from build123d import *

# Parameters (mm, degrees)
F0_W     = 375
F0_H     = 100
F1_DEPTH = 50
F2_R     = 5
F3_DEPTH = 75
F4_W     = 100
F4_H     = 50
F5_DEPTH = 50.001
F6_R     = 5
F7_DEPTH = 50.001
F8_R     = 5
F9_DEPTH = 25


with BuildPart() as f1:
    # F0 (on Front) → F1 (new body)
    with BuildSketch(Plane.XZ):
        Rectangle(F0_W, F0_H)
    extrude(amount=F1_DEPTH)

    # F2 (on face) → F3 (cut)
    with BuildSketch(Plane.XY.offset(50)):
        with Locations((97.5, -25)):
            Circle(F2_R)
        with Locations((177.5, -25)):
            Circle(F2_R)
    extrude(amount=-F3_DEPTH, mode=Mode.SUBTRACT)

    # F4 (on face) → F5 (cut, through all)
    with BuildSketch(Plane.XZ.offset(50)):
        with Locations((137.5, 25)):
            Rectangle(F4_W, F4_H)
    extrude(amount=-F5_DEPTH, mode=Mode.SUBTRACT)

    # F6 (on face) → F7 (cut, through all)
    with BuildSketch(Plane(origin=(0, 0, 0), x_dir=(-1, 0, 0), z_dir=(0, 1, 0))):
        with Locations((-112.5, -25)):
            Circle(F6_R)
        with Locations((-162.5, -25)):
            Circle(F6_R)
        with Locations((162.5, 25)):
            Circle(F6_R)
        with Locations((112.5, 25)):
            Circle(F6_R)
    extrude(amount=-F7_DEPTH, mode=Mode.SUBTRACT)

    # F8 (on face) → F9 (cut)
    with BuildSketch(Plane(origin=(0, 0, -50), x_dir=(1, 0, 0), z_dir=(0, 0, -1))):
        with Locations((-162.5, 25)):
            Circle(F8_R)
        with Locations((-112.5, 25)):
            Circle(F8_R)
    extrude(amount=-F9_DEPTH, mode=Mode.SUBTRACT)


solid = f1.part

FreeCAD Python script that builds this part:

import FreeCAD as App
import Part
import Sketcher
from FreeCAD import Vector


def add_polygon(sketch, points):
    """Adds a closed chain of lines whose ends are joined by coincident constraints."""
    first, n = sketch.GeometryCount, len(points)
    for a, b in zip(points, points[1:] + points[:1]):
        sketch.addGeometry(Part.LineSegment(App.Vector(*a, 0), App.Vector(*b, 0)), False)
    for i in range(n):
        sketch.addConstraint(Sketcher.Constraint("Coincident", first + i, 2, first + (i + 1) % n, 1))

doc = App.newDocument("Part")
body = doc.addObject("PartDesign::Body", "Body")

# Sketch on XZ plane
sketch1 = body.newObject("Sketcher::SketchObject", "Sketch")
sketch1.AttachmentSupport = (doc.getObject("XZ_Plane"), [""])
sketch1.MapMode = "FlatFace"
add_polygon(sketch1, [(-187.5, 50), (-187.5, -50), (187.5, -50), (187.5, 50)])  # lines 0-3
sketch1.addConstraint([
    Sketcher.Constraint("Vertical", 0),
    Sketcher.Constraint("Horizontal", 1),
    Sketcher.Constraint("Vertical", 2),
    Sketcher.Constraint("Horizontal", 3),
    Sketcher.Constraint("Symmetric", 0, 2, 2, 2, -1, 1),
    Sketcher.Constraint("DistanceX", 1, 1, 1, 2, 375.0),
    Sketcher.Constraint("DistanceY", 0, 2, 0, 1, 100.0),
])
pad1 = body.newObject("PartDesign::Pad", "Pad")
pad1.Profile = sketch1
pad1.Length = 50

# Sketch on XY plane
sketch2 = body.newObject("Sketcher::SketchObject", "Sketch001")
sketch2.AttachmentSupport = (doc.getObject("XY_Plane"), [""])
sketch2.MapMode = "FlatFace"
sketch2.AttachmentOffset = App.Placement(Vector(0, 0, 50), App.Rotation())
sketch2.addGeometry([
    Part.Circle(Vector(97.5, -25, 0), Vector(0, 0, 1), 5),
    Part.Circle(Vector(177.5, -25, 0), Vector(0, 0, 1), 5),
], False)
sketch2.addConstraint([
    Sketcher.Constraint("Equal", 0, 1),
    Sketcher.Constraint("Horizontal", 0, 3, 1, 3),
    Sketcher.Constraint("Diameter", 0, 10.0),
    Sketcher.Constraint("DistanceY", 0, 3, -1, 1, 25.0),
    Sketcher.Constraint("DistanceX", 0, 3, 1, 3, 80.0),
    Sketcher.Constraint("DistanceX", -1, 1, 0, 3, 97.5),
])
pocket1 = body.newObject("PartDesign::Pocket", "Pocket")
pocket1.Profile = sketch2
pocket1.Length = 75

# Sketch on XZ plane
sketch3 = body.newObject("Sketcher::SketchObject", "Sketch002")
sketch3.AttachmentSupport = (doc.getObject("XZ_Plane"), [""])
sketch3.MapMode = "FlatFace"
sketch3.AttachmentOffset = App.Placement(Vector(0, 0, 50), App.Rotation())
add_polygon(sketch3, [(87.5, 50), (87.5, 0), (187.5, 0), (187.5, 50)])  # lines 0-3
sketch3.addConstraint([
    Sketcher.Constraint("Vertical", 0),
    Sketcher.Constraint("Horizontal", 1),
    Sketcher.Constraint("Vertical", 2),
    Sketcher.Constraint("Horizontal", 3),
    Sketcher.Constraint("PointOnObject", 0, 2, -1),
    Sketcher.Constraint("DistanceX", 1, 1, 1, 2, 100.0),
    Sketcher.Constraint("DistanceY", 0, 2, 0, 1, 50.0),
    Sketcher.Constraint("DistanceX", -1, 1, 0, 2, 87.5),
])
pocket2 = body.newObject("PartDesign::Pocket", "Pocket001")
pocket2.Profile = sketch3
pocket2.Type = "ThroughAll"

# Sketch on XZ plane
sketch4 = body.newObject("Sketcher::SketchObject", "Sketch003")
sketch4.AttachmentSupport = (doc.getObject("XZ_Plane"), [""])
sketch4.MapMode = "FlatFace"
sketch4.addGeometry([
    Part.Circle(Vector(112.5, -25, 0), Vector(0, 0, 1), 5),
    Part.Circle(Vector(162.5, -25, 0), Vector(0, 0, 1), 5),
    Part.Circle(Vector(-162.5, 25, 0), Vector(0, 0, 1), 5),
    Part.Circle(Vector(-112.5, 25, 0), Vector(0, 0, 1), 5),
], False)
sketch4.addConstraint([
    Sketcher.Constraint("Equal", 0, 1),
    Sketcher.Constraint("Equal", 1, 2),
    Sketcher.Constraint("Equal", 2, 3),
    Sketcher.Constraint("Symmetric", 1, 3, 2, 3, -1, 1),
    Sketcher.Constraint("Symmetric", 0, 3, 3, 3, -1, 1),
    Sketcher.Constraint("Horizontal", 0, 3, 1, 3),
    Sketcher.Constraint("Diameter", 0, 10.0),
    Sketcher.Constraint("DistanceY", 0, 3, -1, 1, 25.0),
    Sketcher.Constraint("DistanceX", 0, 3, 1, 3, 50.0),
    Sketcher.Constraint("DistanceX", 2, 3, 0, 3, 275.0),
])
pocket3 = body.newObject("PartDesign::Pocket", "Pocket002")
pocket3.Profile = sketch4
pocket3.Type = "ThroughAll"
pocket3.Reversed = True

# Sketch on XY plane
sketch5 = body.newObject("Sketcher::SketchObject", "Sketch004")
sketch5.AttachmentSupport = (doc.getObject("XY_Plane"), [""])
sketch5.MapMode = "FlatFace"
sketch5.AttachmentOffset = App.Placement(Vector(0, 0, -50), App.Rotation())
sketch5.addGeometry([
    Part.Circle(Vector(-162.5, -25, 0), Vector(0, 0, 1), 5),
    Part.Circle(Vector(-112.5, -25, 0), Vector(0, 0, 1), 5),
], False)
sketch5.addConstraint([
    Sketcher.Constraint("Equal", 0, 1),
    Sketcher.Constraint("Horizontal", 0, 3, 1, 3),
    Sketcher.Constraint("Diameter", 0, 10.0),
    Sketcher.Constraint("DistanceY", 0, 3, -1, 1, 25.0),
    Sketcher.Constraint("DistanceX", 0, 3, 1, 3, 50.0),
    Sketcher.Constraint("DistanceX", 0, 3, -1, 1, 162.5),
])
pocket4 = body.newObject("PartDesign::Pocket", "Pocket003")
pocket4.Profile = sketch5
pocket4.Length = 25
pocket4.Reversed = True

doc.recompute()
